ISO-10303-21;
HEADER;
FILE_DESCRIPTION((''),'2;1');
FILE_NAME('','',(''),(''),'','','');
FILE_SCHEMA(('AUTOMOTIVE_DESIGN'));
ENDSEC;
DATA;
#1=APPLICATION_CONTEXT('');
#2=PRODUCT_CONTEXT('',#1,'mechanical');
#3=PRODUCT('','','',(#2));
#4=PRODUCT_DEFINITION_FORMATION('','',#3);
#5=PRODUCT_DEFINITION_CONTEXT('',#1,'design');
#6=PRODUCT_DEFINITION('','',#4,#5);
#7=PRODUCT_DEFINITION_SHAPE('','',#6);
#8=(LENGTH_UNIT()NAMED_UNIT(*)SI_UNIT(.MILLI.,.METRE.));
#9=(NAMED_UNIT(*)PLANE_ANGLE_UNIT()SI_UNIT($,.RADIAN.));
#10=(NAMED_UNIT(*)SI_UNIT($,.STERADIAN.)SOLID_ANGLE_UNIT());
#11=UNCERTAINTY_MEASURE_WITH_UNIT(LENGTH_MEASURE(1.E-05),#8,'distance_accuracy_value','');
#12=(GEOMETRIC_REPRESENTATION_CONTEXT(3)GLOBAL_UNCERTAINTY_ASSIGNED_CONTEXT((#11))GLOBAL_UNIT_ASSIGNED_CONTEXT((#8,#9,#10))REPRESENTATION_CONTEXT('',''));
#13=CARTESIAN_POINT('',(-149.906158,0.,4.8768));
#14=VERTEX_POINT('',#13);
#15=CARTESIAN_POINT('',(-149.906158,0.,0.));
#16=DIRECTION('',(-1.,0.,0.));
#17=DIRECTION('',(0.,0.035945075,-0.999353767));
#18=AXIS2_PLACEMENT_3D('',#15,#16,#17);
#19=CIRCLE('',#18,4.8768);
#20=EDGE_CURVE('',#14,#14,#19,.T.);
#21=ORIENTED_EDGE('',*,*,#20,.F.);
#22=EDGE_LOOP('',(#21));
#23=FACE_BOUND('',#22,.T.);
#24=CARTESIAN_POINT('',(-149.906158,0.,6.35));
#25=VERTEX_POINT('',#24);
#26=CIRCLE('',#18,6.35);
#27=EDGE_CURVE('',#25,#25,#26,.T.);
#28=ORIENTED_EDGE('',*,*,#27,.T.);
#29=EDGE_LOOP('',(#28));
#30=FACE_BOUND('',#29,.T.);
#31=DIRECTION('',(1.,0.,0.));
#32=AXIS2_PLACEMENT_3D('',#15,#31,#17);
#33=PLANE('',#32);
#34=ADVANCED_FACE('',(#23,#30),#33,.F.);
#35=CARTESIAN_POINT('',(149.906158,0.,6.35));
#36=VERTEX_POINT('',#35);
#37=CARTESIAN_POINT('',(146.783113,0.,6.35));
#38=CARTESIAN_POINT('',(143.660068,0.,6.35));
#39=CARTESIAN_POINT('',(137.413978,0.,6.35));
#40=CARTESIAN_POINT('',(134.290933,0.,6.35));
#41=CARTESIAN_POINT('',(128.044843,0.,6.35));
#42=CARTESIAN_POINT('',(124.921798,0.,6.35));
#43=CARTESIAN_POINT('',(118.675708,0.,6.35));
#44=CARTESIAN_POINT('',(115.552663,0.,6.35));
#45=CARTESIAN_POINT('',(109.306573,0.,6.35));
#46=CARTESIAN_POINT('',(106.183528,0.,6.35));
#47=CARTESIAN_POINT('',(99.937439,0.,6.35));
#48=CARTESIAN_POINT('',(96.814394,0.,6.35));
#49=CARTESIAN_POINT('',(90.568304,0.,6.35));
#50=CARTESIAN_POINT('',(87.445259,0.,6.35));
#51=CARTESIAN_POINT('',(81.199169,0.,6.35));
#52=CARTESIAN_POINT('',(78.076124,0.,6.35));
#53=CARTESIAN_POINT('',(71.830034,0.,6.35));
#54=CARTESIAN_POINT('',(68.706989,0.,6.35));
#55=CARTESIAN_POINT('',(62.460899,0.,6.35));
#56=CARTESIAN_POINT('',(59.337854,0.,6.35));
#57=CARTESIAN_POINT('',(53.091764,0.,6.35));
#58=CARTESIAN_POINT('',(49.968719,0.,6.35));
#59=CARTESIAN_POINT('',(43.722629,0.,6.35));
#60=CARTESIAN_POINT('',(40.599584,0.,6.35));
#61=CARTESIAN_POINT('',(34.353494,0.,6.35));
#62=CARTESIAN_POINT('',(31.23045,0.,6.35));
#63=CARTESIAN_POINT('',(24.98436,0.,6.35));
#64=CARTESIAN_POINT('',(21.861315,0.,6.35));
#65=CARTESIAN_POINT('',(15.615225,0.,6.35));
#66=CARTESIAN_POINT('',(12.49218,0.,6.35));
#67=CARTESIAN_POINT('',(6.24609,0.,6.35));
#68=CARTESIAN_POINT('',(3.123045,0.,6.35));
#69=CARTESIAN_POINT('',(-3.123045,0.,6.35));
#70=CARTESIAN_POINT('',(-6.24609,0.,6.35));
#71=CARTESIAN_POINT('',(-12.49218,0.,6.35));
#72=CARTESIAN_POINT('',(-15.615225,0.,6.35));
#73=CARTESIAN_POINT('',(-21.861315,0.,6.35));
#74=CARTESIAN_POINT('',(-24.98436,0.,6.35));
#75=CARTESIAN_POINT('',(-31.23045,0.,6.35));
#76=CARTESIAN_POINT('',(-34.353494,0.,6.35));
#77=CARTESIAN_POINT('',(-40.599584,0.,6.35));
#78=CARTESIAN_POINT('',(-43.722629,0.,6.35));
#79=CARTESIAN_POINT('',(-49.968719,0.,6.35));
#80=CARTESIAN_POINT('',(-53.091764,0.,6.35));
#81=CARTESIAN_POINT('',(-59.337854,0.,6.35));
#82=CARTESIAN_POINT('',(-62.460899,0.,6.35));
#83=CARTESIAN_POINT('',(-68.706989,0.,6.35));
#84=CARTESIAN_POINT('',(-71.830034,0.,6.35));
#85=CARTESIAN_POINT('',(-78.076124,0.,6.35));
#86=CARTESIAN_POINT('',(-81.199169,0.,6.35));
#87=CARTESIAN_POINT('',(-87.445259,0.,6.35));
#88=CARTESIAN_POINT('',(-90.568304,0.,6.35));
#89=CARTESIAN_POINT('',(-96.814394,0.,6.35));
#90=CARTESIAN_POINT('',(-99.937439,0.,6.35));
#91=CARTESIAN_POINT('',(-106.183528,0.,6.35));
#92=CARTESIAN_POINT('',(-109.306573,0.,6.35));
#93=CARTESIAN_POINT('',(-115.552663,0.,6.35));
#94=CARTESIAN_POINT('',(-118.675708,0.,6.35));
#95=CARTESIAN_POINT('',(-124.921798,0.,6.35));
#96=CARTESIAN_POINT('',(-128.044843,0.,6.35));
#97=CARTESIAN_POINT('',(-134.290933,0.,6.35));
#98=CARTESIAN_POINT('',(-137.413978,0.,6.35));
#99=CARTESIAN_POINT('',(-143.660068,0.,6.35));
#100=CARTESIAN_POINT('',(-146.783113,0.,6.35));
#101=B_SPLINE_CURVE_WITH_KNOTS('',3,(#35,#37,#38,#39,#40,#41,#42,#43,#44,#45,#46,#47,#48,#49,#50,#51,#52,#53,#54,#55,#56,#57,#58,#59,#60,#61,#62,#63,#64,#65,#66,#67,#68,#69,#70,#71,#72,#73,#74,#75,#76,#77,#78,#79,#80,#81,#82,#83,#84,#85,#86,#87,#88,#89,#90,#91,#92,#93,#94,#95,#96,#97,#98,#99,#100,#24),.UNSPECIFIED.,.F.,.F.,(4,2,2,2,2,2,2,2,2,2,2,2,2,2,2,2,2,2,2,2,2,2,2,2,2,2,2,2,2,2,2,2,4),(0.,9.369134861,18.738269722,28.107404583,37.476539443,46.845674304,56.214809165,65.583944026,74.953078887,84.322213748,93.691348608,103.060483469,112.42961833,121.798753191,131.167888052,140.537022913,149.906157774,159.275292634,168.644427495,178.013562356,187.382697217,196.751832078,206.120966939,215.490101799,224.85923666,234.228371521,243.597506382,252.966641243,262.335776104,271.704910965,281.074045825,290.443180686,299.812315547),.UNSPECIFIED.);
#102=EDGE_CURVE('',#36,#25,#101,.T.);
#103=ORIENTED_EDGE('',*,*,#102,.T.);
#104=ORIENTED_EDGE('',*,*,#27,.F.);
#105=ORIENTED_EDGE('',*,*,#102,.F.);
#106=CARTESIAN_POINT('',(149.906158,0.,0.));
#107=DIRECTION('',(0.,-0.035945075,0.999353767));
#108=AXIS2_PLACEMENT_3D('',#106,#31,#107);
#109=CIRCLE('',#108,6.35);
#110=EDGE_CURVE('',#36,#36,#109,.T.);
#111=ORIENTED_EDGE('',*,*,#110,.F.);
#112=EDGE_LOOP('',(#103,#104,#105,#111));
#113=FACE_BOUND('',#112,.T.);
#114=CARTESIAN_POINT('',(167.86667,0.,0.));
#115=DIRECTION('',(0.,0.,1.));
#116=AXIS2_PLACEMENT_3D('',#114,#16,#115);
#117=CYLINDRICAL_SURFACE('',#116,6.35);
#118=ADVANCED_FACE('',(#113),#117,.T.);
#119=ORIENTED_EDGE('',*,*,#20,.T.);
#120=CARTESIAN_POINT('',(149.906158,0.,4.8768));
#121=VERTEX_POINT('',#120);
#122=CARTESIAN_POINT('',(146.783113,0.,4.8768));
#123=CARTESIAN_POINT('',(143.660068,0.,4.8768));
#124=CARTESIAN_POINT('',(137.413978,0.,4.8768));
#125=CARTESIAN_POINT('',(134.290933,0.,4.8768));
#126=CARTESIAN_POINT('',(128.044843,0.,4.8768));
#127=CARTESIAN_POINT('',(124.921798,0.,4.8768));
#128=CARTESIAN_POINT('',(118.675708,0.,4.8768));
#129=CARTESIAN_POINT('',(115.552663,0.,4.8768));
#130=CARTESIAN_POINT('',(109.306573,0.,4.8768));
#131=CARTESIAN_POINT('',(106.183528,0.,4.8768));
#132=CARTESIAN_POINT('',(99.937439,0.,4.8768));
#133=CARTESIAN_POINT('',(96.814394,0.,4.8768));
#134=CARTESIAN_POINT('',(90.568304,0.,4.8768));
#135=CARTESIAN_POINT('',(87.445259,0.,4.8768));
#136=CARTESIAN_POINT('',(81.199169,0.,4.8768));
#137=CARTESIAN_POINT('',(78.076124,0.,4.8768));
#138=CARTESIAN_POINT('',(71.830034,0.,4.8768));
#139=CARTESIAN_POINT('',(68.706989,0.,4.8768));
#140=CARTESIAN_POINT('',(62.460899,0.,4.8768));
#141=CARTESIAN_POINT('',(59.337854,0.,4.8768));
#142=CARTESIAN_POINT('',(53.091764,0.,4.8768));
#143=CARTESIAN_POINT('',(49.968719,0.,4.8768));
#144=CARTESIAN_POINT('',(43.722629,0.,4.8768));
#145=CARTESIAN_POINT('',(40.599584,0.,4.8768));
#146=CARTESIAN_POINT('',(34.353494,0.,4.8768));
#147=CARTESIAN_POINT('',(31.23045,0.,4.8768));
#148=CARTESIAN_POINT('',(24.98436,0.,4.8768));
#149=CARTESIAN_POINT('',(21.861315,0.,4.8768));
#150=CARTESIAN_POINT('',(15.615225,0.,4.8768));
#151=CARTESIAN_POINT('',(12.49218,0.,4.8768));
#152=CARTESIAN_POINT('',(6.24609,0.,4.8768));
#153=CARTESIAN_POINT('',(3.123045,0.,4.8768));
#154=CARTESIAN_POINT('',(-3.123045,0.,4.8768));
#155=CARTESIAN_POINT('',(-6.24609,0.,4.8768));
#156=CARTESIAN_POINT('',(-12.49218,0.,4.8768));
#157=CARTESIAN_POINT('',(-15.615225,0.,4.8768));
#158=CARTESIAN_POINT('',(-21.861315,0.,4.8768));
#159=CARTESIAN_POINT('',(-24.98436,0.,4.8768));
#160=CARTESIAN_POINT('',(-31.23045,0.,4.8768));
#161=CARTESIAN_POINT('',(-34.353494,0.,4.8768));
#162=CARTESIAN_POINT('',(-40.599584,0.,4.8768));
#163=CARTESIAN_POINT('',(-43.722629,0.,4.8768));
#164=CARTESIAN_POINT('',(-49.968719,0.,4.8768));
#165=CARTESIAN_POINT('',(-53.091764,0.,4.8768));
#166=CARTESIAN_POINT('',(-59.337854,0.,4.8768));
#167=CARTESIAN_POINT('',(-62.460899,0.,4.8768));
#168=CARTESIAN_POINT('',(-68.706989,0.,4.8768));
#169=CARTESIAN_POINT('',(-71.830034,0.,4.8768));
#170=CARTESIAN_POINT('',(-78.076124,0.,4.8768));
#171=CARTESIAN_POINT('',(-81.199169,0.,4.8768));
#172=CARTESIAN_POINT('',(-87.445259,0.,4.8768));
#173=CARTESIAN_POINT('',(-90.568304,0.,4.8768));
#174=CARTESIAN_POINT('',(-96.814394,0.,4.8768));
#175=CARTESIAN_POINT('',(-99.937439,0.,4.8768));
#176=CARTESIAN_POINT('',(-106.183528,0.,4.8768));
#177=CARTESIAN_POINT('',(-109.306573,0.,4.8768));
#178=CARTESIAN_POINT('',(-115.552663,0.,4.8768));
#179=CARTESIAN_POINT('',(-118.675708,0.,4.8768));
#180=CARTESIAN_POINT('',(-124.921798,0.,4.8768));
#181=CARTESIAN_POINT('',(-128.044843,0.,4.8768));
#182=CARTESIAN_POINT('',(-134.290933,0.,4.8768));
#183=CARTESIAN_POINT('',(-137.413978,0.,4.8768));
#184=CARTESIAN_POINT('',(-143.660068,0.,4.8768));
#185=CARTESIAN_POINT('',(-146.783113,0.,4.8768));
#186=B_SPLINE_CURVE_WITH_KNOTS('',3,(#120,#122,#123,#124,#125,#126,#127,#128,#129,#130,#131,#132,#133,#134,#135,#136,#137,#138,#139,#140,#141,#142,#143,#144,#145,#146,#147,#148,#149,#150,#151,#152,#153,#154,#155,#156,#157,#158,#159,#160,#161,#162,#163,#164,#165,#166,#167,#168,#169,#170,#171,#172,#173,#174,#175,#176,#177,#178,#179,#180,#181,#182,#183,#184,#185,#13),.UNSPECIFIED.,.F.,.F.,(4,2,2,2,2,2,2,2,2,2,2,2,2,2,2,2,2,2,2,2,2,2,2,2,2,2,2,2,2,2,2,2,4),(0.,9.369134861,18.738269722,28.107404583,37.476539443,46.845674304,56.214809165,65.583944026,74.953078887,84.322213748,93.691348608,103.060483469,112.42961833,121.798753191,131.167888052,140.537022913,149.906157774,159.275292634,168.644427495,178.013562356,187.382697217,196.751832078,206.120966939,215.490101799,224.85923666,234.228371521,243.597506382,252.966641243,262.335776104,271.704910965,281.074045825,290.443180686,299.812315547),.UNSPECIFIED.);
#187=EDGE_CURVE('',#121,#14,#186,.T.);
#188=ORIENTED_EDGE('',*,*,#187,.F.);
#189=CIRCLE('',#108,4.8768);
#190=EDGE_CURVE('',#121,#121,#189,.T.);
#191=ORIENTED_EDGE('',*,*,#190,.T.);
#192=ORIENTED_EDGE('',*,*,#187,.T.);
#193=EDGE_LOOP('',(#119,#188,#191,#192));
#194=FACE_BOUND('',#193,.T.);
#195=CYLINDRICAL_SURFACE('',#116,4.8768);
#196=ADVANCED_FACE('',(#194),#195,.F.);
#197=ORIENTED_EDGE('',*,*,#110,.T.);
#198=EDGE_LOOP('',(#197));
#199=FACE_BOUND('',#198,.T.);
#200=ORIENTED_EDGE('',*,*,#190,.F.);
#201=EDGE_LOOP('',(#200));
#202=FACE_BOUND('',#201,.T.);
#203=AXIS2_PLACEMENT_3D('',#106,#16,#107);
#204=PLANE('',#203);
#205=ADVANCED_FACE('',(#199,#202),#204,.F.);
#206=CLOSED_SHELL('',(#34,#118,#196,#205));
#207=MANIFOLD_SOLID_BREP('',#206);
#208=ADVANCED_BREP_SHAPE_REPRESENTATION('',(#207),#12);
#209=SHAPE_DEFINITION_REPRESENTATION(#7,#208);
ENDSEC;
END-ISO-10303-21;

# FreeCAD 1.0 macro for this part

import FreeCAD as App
import Part
import Sketcher
from FreeCAD import Vector
Q = App.Units.Quantity

doc = App.newDocument("Part")
body = doc.addObject("PartDesign::Body", "Body")

# Sketch on YZ plane
sketch1 = doc.addObject("Sketcher::SketchObject", "Sketch")
body.addObject(sketch1)
sketch1.AttachmentSupport = (doc.YZ_Plane, [""])
sketch1.MapMode = "FlatFace"
sketch1.addGeometry([
    Part.Circle(Vector(0, 0, 0), Vector(0, 0, 1), 6.3),
    Part.Circle(Vector(0, 0, 0), Vector(0, 0, 1), 4.9),
], False)
sketch1.addConstraint([
    Sketcher.Constraint("Coincident", 0, 3, -1, 1),
    Sketcher.Constraint("Coincident", 1, 3, -1, 1),
    Sketcher.Constraint("Diameter", 0, Q("0.5 in")),
    Sketcher.Constraint("Diameter", 1, Q("0.384 in")),
])
pad1 = doc.addObject("PartDesign::Pad", "Pad")
body.addObject(pad1)
pad1.Profile = sketch1
pad1.Type = "TwoLengths"
pad1.Length = 149.906158
pad1.Length2 = 149.906158

doc.recompute()
